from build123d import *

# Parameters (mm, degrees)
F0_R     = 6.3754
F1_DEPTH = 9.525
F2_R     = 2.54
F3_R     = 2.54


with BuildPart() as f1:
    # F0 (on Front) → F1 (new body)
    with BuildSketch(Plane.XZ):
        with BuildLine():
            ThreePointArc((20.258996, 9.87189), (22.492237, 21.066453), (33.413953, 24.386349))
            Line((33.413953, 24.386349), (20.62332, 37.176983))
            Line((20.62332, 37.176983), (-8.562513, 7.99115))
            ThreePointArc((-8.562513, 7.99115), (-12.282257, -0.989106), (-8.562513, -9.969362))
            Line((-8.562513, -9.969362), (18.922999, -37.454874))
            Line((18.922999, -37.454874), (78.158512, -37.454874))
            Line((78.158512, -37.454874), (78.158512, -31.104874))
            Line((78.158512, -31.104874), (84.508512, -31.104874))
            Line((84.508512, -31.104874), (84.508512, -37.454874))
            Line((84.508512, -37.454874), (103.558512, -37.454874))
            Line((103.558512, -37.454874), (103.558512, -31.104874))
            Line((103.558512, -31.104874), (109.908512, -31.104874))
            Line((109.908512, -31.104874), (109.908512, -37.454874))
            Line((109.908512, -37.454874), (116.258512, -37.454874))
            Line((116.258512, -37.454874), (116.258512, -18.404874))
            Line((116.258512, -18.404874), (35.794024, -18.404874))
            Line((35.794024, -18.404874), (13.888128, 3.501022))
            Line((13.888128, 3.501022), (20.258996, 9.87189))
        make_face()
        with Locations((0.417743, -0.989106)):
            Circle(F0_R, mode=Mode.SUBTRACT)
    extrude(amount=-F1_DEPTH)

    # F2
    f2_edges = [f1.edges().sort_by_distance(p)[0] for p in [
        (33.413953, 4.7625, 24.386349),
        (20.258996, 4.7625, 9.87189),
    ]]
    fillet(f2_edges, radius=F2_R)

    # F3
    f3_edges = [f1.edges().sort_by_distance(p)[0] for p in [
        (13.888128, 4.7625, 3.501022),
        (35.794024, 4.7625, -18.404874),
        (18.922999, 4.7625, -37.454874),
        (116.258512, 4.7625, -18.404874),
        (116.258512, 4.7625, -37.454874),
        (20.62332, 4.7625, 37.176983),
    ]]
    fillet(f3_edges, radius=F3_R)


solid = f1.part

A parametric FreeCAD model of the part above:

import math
import FreeCAD as App
import Part
import Sketcher

V = App.Vector
Q = App.Units.Quantity


def edges_at(feature, points):
    """Names of the edges that pass closest to the given points."""
    edges = feature.Shape.Edges
    near = lambda p: min(range(len(edges)), key=lambda i: edges[i].distToShape(Part.Vertex(*p))[0])
    return sorted({f"Edge{near(p) + 1}" for p in points})

doc = App.newDocument("Part")
body = doc.addObject("PartDesign::Body", "Body")

# Sketch on XZ plane
sketch1 = body.newObject("Sketcher::SketchObject", "Sketch")
sketch1.AttachmentSupport = (doc.getObject("XZ_Plane"), [""])
sketch1.MapMode = "FlatFace"
sketch1.addGeometry(Part.ArcOfCircle(Part.Circle(V(30.726107, 13.603811, 0), V(0, 0, 1), 11.1125), math.radians(76.002716), math.radians(199.623072)), False)
sketch1.addGeometry(Part.LineSegment(V(33.413953, 24.386349, 0), V(20.62332, 37.176983, 0)), False)
sketch1.addGeometry(Part.LineSegment(V(20.62332, 37.176983, 0), V(-8.562513, 7.99115, 0)), False)
sketch1.addGeometry(Part.ArcOfCircle(Part.Circle(V(0.417742, -0.989106, 0), V(0, 0, 1), 12.699999), math.radians(134.999998), math.radians(225.000002)), False)
sketch1.addGeometry(Part.LineSegment(V(-8.562513, -9.969362, 0), V(18.922999, -37.454874, 0)), False)
sketch1.addGeometry(Part.LineSegment(V(18.922999, -37.454874, 0), V(78.158512, -37.454874, 0)), False)
sketch1.addGeometry(Part.LineSegment(V(78.158512, -37.454874, 0), V(78.158512, -31.104874, 0)), False)
sketch1.addGeometry(Part.LineSegment(V(78.158512, -31.104874, 0), V(84.508512, -31.104874, 0)), False)
sketch1.addGeometry(Part.LineSegment(V(84.508512, -31.104874, 0), V(84.508512, -37.454874, 0)), False)
sketch1.addGeometry(Part.LineSegment(V(84.508512, -37.454874, 0), V(103.558512, -37.454874, 0)), False)
sketch1.addGeometry(Part.LineSegment(V(103.558512, -37.454874, 0), V(103.558512, -31.104874, 0)), False)
sketch1.addGeometry(Part.LineSegment(V(103.558512, -31.104874, 0), V(109.908512, -31.104874, 0)), False)
sketch1.addGeometry(Part.LineSegment(V(109.908512, -31.104874, 0), V(109.908512, -37.454874, 0)), False)
sketch1.addGeometry(Part.LineSegment(V(109.908512, -37.454874, 0), V(116.258512, -37.454874, 0)), False)
sketch1.addGeometry(Part.LineSegment(V(116.258512, -37.454874, 0), V(116.258512, -18.404874, 0)), False)
sketch1.addGeometry(Part.LineSegment(V(116.258512, -18.404874, 0), V(35.794024, -18.404874, 0)), False)
sketch1.addGeometry(Part.LineSegment(V(35.794024, -18.404874, 0), V(13.888128, 3.501022, 0)), False)
sketch1.addGeometry(Part.LineSegment(V(13.888128, 3.501022, 0), V(20.258996, 9.87189, 0)), False)
sketch1.addGeometry(Part.Circle(V(0.417743, -0.989106, 0), V(0, 0, 1), 6.3754), False)
sketch1.addConstraint(Sketcher.Constraint("Coincident", 0, 1, 1, 1))
sketch1.addConstraint(Sketcher.Constraint("Coincident", 1, 2, 2, 1))
sketch1.addConstraint(Sketcher.Constraint("Tangent", 2, 2, 3, 1))
sketch1.addConstraint(Sketcher.Constraint("Tangent", 3, 2, 4, 1))
sketch1.addConstraint(Sketcher.Constraint("Coincident", 4, 2, 5, 1))
sketch1.addConstraint(Sketcher.Constraint("Coincident", 5, 2, 6, 1))
sketch1.addConstraint(Sketcher.Constraint("Coincident", 6, 2, 7, 1))
sketch1.addConstraint(Sketcher.Constraint("Coincident", 7, 2, 8, 1))
sketch1.addConstraint(Sketcher.Constraint("Coincident", 8, 2, 9, 1))
sketch1.addConstraint(Sketcher.Constraint("Coincident", 9, 2, 10, 1))
sketch1.addConstraint(Sketcher.Constraint("Coincident", 10, 2, 11, 1))
sketch1.addConstraint(Sketcher.Constraint("Coincident", 11, 2, 12, 1))
sketch1.addConstraint(Sketcher.Constraint("Coincident", 12, 2, 13, 1))
sketch1.addConstraint(Sketcher.Constraint("Coincident", 13, 2, 14, 1))
sketch1.addConstraint(Sketcher.Constraint("Coincident", 14, 2, 15, 1))
sketch1.addConstraint(Sketcher.Constraint("Coincident", 15, 2, 16, 1))
sketch1.addConstraint(Sketcher.Constraint("Coincident", 16, 2, 17, 1))
sketch1.addConstraint(Sketcher.Constraint("Coincident", 17, 2, 0, 2))
sketch1.addConstraint(Sketcher.Constraint("Horizontal", 5))
sketch1.addConstraint(Sketcher.Constraint("Vertical", 6))
sketch1.addConstraint(Sketcher.Constraint("Horizontal", 7))
sketch1.addConstraint(Sketcher.Constraint("Vertical", 8))
sketch1.addConstraint(Sketcher.Constraint("Horizontal", 9))
sketch1.addConstraint(Sketcher.Constraint("Vertical", 10))
sketch1.addConstraint(Sketcher.Constraint("Horizontal", 11))
sketch1.addConstraint(Sketcher.Constraint("Vertical", 12))
sketch1.addConstraint(Sketcher.Constraint("Horizontal", 13))
sketch1.addConstraint(Sketcher.Constraint("Vertical", 14))
sketch1.addConstraint(Sketcher.Constraint("Horizontal", 15))
sketch1.addConstraint(Sketcher.Constraint("Coincident", 18, 3, 3, 3))
sketch1.addConstraint(Sketcher.Constraint("Perpendicular", 1, 2))
sketch1.addConstraint(Sketcher.Constraint("Perpendicular", 2, 4))
sketch1.addConstraint(Sketcher.Constraint("Parallel", 4, 16))
sketch1.addConstraint(Sketcher.Constraint("Perpendicular", 16, 17))
sketch1.addConstraint(Sketcher.Constraint("Horizontal", 5, 2, 8, 2))
sketch1.addConstraint(Sketcher.Constraint("Horizontal", 7, 2, 10, 2))
sketch1.addConstraint(Sketcher.Constraint("Horizontal", 9, 2, 12, 2))
sketch1.addConstraint(Sketcher.Constraint("Vertical", 2, 2, 3, 2))
sketch1.addConstraint(Sketcher.Constraint("Equal", 7, 11))
sketch1.addConstraint(Sketcher.Constraint("Equal", 11, 13))
sketch1.addConstraint(Sketcher.Constraint("Equal", 13, 6))
sketch1.addConstraint(Sketcher.Constraint("Equal", 9, 14))
sketch1.addConstraint(Sketcher.Constraint("Radius", 3, Q("0.5 in")))
sketch1.addConstraint(Sketcher.Constraint("Diameter", 18, Q("0.502 in")))
sketch1.addConstraint(Sketcher.Constraint("Radius", 0, Q("0.4375 in")))
sketch1.addConstraint(Sketcher.Constraint("DistanceX", 5, 2, 9, 2, Q("1 in")))
sketch1.addConstraint(Sketcher.Constraint("DistanceX", 7, 1, 7, 2, Q("0.25 in")))
sketch1.addConstraint(Sketcher.Constraint("Distance", 2, Q("1.625 in")))
sketch1.addConstraint(Sketcher.Constraint("DistanceX", -1, 1, 4, 2, Q("0.745 in")))
sketch1.addConstraint(Sketcher.Constraint("DistanceY", 2, 2, 0, 1, 16.395199))
sketch1.addConstraint(Sketcher.Constraint("DistanceX", 5, 1, 5, 2, 59.235513))
sketch1.addConstraint(Sketcher.Constraint("DistanceX", 15, 2, 15, 1, 80.464488))
sketch1.addConstraint(Sketcher.Constraint("DistanceY", -1, 1, 0, 3, 13.603811))
sketch1.addConstraint(Sketcher.Constraint("DistanceY", -1, 1, 0, 1, 24.386349))
sketch1.addConstraint(Sketcher.Constraint("DistanceX", -1, 1, 1, 2, 20.62332))
sketch1.addConstraint(Sketcher.Constraint("DistanceY", -1, 1, 16, 2, 3.501022))
pad1 = body.newObject("PartDesign::Pad", "Pad")
pad1.Profile = sketch1
pad1.Length = Q("0.375 in")
pad1.Reversed = True
doc.recompute()

fillet = body.newObject("PartDesign::Fillet", "Fillet")
fillet.Base = (pad1, edges_at(pad1, [(33.414, 4.763, 24.386), (20.259, 4.763, 9.872)]))
fillet.Radius = Q("0.1 in")
doc.recompute()

fillet2 = body.newObject("PartDesign::Fillet", "Fillet001")
fillet2.Base = (fillet, edges_at(fillet, [
    (13.888, 4.763, 3.501),
    (35.794, 4.763, -18.405),
    (18.923, 4.763, -37.455),
    (116.259, 4.763, -18.405),
    (116.259, 4.763, -37.455),
    (20.623, 4.763, 37.177),
]))
fillet2.Radius = Q("0.1 in")

doc.recompute()
